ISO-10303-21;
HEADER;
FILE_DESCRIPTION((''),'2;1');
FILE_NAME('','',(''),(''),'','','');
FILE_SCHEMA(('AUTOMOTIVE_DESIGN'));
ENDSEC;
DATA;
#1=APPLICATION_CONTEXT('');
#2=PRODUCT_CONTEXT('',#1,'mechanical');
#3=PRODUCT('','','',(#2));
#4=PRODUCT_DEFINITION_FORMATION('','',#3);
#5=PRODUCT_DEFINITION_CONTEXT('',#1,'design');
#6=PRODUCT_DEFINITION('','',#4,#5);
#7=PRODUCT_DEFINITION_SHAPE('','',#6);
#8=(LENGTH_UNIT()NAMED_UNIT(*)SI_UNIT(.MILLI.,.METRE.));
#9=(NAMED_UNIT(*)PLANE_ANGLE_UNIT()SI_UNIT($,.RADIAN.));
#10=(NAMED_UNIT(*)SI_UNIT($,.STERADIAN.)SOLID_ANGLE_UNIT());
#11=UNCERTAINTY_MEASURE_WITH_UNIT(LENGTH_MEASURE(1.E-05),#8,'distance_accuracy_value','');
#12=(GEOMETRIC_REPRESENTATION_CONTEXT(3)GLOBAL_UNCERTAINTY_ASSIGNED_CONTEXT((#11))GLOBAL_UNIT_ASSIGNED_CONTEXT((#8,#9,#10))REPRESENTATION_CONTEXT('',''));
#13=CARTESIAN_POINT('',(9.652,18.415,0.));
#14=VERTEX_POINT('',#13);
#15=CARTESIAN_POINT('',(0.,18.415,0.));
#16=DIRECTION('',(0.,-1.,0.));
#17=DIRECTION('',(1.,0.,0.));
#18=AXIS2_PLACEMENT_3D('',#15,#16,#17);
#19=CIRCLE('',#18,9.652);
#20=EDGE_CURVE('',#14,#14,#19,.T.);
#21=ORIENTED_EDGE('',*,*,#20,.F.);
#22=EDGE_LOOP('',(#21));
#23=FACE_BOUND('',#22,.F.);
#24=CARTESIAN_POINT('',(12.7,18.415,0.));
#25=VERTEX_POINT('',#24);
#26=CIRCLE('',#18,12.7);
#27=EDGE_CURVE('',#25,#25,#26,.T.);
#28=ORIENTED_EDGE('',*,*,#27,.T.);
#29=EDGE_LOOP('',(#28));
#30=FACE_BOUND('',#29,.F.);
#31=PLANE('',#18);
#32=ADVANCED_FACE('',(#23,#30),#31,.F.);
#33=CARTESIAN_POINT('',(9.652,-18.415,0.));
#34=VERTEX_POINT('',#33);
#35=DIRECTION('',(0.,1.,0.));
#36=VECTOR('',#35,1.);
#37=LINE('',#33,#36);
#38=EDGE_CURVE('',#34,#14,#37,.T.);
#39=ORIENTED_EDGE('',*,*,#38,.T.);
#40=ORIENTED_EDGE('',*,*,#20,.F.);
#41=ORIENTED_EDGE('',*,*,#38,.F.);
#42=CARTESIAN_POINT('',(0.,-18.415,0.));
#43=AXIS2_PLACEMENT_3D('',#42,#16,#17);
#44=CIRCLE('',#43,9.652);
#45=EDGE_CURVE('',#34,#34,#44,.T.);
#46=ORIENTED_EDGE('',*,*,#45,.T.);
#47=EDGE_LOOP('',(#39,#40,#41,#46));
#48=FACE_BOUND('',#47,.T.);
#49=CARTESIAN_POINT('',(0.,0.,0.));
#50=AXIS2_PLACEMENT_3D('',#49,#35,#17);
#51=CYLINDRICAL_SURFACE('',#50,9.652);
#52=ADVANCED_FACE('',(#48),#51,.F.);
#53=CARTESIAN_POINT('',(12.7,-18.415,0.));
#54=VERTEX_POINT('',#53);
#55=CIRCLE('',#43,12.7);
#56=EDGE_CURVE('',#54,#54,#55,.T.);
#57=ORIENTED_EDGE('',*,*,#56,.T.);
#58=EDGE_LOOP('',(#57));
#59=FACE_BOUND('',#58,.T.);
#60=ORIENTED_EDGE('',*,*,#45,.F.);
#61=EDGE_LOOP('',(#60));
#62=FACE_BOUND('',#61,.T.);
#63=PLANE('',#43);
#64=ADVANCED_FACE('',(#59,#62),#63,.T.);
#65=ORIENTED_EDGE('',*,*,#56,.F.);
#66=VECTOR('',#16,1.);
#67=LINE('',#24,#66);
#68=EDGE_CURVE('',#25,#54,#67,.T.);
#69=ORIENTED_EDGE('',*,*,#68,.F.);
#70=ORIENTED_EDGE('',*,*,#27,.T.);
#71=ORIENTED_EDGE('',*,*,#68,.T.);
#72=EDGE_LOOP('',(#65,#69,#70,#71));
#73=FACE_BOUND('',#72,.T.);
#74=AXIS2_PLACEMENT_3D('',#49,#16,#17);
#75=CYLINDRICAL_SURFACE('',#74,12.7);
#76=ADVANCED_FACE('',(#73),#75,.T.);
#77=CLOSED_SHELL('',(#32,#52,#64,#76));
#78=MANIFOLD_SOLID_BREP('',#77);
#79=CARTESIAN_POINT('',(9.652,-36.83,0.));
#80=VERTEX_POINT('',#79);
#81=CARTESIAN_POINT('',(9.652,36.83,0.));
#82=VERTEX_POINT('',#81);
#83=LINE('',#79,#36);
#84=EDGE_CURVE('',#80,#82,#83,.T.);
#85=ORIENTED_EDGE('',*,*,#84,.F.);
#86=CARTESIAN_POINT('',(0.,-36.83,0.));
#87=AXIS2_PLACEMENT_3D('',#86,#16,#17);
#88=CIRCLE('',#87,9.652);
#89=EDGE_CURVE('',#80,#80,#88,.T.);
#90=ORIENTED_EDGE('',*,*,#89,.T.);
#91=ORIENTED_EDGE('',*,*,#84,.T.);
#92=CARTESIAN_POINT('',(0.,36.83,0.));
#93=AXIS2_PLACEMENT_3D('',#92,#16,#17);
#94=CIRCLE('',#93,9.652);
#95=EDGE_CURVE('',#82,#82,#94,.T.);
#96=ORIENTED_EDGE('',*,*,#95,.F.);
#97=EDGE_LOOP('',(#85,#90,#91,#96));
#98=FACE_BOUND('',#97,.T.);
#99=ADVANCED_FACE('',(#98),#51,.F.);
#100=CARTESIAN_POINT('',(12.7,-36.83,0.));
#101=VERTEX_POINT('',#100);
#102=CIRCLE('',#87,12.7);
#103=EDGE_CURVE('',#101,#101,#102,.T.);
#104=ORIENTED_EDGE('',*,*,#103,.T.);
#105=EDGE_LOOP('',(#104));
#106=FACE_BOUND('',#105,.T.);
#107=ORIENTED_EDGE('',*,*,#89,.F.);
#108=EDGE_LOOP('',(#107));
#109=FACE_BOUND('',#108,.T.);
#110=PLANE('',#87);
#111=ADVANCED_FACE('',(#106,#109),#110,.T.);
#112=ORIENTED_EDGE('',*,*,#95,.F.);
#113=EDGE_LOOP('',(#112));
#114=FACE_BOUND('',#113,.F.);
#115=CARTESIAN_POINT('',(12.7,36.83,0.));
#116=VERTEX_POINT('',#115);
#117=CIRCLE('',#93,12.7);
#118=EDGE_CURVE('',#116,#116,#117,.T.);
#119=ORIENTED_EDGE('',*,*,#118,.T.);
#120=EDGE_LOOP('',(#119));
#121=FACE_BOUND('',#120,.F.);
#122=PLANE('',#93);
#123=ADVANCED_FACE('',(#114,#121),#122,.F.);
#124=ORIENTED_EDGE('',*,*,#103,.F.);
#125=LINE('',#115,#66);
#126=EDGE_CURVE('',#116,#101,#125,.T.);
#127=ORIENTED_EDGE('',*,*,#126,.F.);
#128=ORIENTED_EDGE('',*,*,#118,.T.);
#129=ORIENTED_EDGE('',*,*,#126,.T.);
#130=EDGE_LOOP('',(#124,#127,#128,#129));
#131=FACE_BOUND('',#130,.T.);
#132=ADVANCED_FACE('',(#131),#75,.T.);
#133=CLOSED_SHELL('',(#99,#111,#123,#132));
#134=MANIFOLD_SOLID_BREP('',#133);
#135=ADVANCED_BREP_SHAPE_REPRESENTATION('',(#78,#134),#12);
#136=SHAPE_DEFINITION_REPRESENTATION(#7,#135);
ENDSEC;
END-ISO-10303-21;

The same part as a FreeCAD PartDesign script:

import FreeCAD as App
import Part
import Sketcher
from FreeCAD import Vector
Q = App.Units.Quantity

doc = App.newDocument("Part")
body = doc.addObject("PartDesign::Body", "Body")

sketch1 = body.newObject("Sketcher::SketchObject", "Sketch")
sketch1.AttachmentSupport = (doc.getObject("XZ_Plane"), [""])
sketch1.MapMode = "FlatFace"
sketch1.addGeometry(Part.Circle(Vector(0, 0, 0), Vector(0, 0, 1), 13), False)
sketch1.addGeometry(Part.Circle(Vector(0, 0, 0), Vector(0, 0, 1), 10), False)
sketch1.addConstraint(Sketcher.Constraint("Coincident", 0, 3, -1, 1))
sketch1.addConstraint(Sketcher.Constraint("Coincident", 1, 3, -1, 1))
sketch1.addConstraint(Sketcher.Constraint("Diameter", 0, Q("1 in")))
sketch1.addConstraint(Sketcher.Constraint("Diameter", 1, Q("0.76 in")))
pad1 = body.newObject("PartDesign::Pad", "Pad")
pad1.Profile = sketch1
pad1.Length = Q("1.45 in")
pad1.Midplane = True
body2 = doc.addObject("PartDesign::Body", "Body001")

sketch2 = body2.newObject("Sketcher::SketchObject", "Sketch001")
sketch2.AttachmentSupport = (doc.getObject("XZ_Plane001"), [""])
sketch2.MapMode = "FlatFace"
sketch2.addGeometry(Part.Circle(Vector(0, 0, 0), Vector(0, 0, 1), 13), False)
sketch2.addGeometry(Part.Circle(Vector(0, 0, 0), Vector(0, 0, 1), 10), False)
sketch2.addConstraint(Sketcher.Constraint("Coincident", 0, 3, -1, 1))
sketch2.addConstraint(Sketcher.Constraint("Coincident", 1, 3, -1, 1))
sketch2.addConstraint(Sketcher.Constraint("Diameter", 0, Q("1 in")))
sketch2.addConstraint(Sketcher.Constraint("Diameter", 1, Q("0.76 in")))
pad2 = body2.newObject("PartDesign::Pad", "Pad001")
pad2.Profile = sketch2
pad2.Length = Q("2.9 in")
pad2.Midplane = True

doc.recompute()
